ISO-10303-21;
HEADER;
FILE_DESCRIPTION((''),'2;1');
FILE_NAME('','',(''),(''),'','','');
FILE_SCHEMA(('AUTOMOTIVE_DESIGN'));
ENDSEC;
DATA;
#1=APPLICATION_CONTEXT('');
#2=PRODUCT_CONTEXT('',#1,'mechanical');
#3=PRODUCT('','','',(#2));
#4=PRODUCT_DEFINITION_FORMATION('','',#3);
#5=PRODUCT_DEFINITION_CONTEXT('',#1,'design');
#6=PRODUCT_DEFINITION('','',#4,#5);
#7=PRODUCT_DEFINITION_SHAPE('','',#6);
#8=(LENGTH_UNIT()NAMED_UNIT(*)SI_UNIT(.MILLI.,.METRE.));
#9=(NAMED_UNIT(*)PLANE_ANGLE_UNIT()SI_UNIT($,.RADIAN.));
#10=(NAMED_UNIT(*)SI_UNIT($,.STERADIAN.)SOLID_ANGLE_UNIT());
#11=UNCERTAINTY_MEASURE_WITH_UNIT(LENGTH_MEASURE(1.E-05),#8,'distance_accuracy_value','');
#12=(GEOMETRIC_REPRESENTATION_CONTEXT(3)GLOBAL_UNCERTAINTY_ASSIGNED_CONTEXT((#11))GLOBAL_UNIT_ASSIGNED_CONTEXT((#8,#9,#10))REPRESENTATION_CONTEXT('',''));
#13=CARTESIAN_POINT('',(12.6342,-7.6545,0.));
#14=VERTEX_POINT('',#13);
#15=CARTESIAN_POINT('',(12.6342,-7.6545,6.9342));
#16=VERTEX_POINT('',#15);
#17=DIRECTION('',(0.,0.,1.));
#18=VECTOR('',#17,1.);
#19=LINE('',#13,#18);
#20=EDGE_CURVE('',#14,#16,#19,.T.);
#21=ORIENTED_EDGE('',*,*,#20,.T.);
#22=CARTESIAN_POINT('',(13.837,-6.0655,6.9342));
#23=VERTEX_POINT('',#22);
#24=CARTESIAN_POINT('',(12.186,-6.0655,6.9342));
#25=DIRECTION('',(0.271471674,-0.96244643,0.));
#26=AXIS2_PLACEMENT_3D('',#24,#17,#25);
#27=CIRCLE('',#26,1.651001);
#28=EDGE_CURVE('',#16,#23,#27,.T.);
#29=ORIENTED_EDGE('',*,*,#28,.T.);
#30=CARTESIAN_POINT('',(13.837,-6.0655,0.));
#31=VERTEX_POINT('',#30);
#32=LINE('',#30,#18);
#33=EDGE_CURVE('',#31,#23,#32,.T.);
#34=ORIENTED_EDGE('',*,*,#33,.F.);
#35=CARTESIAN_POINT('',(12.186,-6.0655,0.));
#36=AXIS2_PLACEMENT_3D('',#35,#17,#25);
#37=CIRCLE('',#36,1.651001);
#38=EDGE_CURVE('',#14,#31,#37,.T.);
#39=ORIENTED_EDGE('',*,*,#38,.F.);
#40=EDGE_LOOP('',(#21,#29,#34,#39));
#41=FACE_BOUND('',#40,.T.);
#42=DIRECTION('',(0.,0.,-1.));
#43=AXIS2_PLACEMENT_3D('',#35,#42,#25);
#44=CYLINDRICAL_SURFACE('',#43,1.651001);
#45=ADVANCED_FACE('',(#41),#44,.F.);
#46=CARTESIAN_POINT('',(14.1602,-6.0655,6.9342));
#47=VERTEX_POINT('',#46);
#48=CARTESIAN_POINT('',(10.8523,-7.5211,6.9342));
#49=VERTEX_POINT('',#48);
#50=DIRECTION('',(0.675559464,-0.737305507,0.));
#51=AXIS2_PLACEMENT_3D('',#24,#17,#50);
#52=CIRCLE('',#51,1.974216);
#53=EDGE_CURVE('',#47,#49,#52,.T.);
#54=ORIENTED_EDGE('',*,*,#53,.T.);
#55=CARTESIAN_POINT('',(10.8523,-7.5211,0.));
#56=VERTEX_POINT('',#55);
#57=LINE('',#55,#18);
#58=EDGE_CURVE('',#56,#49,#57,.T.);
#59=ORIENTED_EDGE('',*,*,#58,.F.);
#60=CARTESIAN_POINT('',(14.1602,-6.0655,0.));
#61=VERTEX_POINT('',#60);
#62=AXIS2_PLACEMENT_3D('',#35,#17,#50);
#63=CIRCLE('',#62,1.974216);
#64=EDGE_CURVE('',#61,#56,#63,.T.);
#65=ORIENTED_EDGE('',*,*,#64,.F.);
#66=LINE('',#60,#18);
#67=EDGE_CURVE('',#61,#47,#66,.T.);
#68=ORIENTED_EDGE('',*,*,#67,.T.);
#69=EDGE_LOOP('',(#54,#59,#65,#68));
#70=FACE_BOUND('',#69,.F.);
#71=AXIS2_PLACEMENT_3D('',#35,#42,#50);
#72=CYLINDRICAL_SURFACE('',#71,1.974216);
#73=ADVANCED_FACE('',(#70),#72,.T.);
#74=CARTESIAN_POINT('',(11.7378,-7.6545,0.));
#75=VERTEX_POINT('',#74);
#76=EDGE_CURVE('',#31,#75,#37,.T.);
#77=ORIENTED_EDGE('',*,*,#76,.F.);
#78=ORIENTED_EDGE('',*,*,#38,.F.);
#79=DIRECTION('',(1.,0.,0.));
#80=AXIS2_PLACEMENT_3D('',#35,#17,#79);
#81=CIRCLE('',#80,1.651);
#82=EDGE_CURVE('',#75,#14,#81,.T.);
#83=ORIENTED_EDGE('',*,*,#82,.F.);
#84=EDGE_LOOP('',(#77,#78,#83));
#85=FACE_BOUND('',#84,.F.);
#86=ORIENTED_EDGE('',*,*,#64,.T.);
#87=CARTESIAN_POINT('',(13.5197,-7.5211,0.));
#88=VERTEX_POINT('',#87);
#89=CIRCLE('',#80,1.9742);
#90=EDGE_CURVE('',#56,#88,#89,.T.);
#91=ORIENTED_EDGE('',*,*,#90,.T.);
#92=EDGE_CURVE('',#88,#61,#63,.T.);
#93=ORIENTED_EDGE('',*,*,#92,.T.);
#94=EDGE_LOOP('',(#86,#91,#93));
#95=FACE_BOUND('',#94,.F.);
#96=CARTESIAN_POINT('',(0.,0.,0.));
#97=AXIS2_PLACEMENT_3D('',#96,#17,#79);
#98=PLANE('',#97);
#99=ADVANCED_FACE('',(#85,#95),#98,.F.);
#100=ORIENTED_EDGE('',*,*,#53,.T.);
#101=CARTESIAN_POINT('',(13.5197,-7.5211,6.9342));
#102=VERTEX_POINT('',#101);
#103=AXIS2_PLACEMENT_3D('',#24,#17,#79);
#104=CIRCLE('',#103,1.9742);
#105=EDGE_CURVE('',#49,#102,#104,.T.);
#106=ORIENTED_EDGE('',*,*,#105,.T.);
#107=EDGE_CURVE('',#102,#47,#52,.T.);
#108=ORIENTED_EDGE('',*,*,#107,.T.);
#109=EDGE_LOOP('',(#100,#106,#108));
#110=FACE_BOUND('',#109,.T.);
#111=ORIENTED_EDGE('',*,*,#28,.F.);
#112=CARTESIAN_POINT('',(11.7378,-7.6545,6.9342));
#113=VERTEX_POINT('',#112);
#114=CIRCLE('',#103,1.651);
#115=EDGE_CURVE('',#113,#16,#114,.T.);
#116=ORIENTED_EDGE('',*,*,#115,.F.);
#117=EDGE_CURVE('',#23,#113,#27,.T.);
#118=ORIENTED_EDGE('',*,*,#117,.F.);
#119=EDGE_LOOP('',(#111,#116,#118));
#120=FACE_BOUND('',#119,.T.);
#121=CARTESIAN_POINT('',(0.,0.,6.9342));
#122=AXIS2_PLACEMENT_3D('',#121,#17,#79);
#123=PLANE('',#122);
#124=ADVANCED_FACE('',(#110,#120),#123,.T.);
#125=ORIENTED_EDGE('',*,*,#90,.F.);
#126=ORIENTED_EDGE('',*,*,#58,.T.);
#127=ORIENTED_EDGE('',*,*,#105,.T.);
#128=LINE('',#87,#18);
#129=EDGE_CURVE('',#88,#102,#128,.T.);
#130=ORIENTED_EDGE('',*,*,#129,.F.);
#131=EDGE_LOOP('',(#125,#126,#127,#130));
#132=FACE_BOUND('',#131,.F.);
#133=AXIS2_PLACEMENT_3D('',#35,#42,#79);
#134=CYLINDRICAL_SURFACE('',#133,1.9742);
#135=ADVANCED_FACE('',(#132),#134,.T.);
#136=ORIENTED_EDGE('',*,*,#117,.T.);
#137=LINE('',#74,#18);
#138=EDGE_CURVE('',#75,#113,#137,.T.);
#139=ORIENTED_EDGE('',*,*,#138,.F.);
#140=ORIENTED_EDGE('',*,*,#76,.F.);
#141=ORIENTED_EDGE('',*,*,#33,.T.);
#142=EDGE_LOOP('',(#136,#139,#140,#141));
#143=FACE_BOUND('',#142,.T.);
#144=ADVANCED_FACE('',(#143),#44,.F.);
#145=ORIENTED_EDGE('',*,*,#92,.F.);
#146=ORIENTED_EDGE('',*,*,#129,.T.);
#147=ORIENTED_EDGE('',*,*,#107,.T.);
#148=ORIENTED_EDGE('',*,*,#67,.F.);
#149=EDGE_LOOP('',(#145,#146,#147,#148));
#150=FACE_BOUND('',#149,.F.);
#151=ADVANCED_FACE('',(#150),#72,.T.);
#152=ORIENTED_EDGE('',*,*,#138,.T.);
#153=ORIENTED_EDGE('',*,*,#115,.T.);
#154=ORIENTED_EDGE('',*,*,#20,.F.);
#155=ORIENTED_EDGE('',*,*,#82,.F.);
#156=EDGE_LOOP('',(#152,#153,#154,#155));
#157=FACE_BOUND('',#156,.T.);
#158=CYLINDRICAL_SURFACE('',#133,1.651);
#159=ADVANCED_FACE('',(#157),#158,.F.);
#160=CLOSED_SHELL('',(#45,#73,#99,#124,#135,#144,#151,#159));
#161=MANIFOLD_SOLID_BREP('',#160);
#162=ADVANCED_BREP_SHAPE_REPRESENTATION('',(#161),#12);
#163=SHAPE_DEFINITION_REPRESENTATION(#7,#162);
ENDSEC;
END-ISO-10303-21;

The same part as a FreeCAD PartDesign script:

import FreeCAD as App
import Part
import Sketcher
from FreeCAD import Vector
Q = App.Units.Quantity

doc = App.newDocument("Part")
params = doc.addObject("Spreadsheet::Sheet", "Params")
for row, (alias, value) in enumerate([
    ("sketch1_diameter", "0.13 in"),
    ("pad1_length", "0.273 in"),
], start=1):
    params.set(f"A{row}", alias)
    params.set(f"B{row}", "=" + value)
    params.setAlias(f"B{row}", alias)

body = doc.addObject("PartDesign::Body", "Body")

sketch1 = body.newObject("Sketcher::SketchObject", "Sketch")
sketch1.AttachmentSupport = (doc.getObject("XY_Plane"), [""])
sketch1.MapMode = "FlatFace"
sketch1.addGeometry(Part.Circle(Vector(12.186, -6.0655, 0), Vector(0, 0, 1), 1.974216), False)
sketch1.addGeometry(Part.Circle(Vector(12.186, -6.0655, 0), Vector(0, 0, 1), 1.651), False)
sketch1.addConstraint(Sketcher.Constraint("Coincident", 1, 3, 0, 3))
sketch1.addConstraint(Sketcher.Constraint("Diameter", 1, Q("0.13 in")))
sketch1.addConstraint(Sketcher.Constraint("Diameter", 0, 3.9484))
sketch1.addConstraint(Sketcher.Constraint("DistanceY", 0, 3, -1, 1, Q("0.2388 in")))
sketch1.addConstraint(Sketcher.Constraint("DistanceX", -1, 1, 0, 3, 12.186))
sketch1.setExpression("Constraints[1]", "Params.sketch1_diameter")
pad1 = body.newObject("PartDesign::Pad", "Pad")
pad1.Profile = sketch1
pad1.setExpression("Length", "Params.pad1_length")

doc.recompute()
